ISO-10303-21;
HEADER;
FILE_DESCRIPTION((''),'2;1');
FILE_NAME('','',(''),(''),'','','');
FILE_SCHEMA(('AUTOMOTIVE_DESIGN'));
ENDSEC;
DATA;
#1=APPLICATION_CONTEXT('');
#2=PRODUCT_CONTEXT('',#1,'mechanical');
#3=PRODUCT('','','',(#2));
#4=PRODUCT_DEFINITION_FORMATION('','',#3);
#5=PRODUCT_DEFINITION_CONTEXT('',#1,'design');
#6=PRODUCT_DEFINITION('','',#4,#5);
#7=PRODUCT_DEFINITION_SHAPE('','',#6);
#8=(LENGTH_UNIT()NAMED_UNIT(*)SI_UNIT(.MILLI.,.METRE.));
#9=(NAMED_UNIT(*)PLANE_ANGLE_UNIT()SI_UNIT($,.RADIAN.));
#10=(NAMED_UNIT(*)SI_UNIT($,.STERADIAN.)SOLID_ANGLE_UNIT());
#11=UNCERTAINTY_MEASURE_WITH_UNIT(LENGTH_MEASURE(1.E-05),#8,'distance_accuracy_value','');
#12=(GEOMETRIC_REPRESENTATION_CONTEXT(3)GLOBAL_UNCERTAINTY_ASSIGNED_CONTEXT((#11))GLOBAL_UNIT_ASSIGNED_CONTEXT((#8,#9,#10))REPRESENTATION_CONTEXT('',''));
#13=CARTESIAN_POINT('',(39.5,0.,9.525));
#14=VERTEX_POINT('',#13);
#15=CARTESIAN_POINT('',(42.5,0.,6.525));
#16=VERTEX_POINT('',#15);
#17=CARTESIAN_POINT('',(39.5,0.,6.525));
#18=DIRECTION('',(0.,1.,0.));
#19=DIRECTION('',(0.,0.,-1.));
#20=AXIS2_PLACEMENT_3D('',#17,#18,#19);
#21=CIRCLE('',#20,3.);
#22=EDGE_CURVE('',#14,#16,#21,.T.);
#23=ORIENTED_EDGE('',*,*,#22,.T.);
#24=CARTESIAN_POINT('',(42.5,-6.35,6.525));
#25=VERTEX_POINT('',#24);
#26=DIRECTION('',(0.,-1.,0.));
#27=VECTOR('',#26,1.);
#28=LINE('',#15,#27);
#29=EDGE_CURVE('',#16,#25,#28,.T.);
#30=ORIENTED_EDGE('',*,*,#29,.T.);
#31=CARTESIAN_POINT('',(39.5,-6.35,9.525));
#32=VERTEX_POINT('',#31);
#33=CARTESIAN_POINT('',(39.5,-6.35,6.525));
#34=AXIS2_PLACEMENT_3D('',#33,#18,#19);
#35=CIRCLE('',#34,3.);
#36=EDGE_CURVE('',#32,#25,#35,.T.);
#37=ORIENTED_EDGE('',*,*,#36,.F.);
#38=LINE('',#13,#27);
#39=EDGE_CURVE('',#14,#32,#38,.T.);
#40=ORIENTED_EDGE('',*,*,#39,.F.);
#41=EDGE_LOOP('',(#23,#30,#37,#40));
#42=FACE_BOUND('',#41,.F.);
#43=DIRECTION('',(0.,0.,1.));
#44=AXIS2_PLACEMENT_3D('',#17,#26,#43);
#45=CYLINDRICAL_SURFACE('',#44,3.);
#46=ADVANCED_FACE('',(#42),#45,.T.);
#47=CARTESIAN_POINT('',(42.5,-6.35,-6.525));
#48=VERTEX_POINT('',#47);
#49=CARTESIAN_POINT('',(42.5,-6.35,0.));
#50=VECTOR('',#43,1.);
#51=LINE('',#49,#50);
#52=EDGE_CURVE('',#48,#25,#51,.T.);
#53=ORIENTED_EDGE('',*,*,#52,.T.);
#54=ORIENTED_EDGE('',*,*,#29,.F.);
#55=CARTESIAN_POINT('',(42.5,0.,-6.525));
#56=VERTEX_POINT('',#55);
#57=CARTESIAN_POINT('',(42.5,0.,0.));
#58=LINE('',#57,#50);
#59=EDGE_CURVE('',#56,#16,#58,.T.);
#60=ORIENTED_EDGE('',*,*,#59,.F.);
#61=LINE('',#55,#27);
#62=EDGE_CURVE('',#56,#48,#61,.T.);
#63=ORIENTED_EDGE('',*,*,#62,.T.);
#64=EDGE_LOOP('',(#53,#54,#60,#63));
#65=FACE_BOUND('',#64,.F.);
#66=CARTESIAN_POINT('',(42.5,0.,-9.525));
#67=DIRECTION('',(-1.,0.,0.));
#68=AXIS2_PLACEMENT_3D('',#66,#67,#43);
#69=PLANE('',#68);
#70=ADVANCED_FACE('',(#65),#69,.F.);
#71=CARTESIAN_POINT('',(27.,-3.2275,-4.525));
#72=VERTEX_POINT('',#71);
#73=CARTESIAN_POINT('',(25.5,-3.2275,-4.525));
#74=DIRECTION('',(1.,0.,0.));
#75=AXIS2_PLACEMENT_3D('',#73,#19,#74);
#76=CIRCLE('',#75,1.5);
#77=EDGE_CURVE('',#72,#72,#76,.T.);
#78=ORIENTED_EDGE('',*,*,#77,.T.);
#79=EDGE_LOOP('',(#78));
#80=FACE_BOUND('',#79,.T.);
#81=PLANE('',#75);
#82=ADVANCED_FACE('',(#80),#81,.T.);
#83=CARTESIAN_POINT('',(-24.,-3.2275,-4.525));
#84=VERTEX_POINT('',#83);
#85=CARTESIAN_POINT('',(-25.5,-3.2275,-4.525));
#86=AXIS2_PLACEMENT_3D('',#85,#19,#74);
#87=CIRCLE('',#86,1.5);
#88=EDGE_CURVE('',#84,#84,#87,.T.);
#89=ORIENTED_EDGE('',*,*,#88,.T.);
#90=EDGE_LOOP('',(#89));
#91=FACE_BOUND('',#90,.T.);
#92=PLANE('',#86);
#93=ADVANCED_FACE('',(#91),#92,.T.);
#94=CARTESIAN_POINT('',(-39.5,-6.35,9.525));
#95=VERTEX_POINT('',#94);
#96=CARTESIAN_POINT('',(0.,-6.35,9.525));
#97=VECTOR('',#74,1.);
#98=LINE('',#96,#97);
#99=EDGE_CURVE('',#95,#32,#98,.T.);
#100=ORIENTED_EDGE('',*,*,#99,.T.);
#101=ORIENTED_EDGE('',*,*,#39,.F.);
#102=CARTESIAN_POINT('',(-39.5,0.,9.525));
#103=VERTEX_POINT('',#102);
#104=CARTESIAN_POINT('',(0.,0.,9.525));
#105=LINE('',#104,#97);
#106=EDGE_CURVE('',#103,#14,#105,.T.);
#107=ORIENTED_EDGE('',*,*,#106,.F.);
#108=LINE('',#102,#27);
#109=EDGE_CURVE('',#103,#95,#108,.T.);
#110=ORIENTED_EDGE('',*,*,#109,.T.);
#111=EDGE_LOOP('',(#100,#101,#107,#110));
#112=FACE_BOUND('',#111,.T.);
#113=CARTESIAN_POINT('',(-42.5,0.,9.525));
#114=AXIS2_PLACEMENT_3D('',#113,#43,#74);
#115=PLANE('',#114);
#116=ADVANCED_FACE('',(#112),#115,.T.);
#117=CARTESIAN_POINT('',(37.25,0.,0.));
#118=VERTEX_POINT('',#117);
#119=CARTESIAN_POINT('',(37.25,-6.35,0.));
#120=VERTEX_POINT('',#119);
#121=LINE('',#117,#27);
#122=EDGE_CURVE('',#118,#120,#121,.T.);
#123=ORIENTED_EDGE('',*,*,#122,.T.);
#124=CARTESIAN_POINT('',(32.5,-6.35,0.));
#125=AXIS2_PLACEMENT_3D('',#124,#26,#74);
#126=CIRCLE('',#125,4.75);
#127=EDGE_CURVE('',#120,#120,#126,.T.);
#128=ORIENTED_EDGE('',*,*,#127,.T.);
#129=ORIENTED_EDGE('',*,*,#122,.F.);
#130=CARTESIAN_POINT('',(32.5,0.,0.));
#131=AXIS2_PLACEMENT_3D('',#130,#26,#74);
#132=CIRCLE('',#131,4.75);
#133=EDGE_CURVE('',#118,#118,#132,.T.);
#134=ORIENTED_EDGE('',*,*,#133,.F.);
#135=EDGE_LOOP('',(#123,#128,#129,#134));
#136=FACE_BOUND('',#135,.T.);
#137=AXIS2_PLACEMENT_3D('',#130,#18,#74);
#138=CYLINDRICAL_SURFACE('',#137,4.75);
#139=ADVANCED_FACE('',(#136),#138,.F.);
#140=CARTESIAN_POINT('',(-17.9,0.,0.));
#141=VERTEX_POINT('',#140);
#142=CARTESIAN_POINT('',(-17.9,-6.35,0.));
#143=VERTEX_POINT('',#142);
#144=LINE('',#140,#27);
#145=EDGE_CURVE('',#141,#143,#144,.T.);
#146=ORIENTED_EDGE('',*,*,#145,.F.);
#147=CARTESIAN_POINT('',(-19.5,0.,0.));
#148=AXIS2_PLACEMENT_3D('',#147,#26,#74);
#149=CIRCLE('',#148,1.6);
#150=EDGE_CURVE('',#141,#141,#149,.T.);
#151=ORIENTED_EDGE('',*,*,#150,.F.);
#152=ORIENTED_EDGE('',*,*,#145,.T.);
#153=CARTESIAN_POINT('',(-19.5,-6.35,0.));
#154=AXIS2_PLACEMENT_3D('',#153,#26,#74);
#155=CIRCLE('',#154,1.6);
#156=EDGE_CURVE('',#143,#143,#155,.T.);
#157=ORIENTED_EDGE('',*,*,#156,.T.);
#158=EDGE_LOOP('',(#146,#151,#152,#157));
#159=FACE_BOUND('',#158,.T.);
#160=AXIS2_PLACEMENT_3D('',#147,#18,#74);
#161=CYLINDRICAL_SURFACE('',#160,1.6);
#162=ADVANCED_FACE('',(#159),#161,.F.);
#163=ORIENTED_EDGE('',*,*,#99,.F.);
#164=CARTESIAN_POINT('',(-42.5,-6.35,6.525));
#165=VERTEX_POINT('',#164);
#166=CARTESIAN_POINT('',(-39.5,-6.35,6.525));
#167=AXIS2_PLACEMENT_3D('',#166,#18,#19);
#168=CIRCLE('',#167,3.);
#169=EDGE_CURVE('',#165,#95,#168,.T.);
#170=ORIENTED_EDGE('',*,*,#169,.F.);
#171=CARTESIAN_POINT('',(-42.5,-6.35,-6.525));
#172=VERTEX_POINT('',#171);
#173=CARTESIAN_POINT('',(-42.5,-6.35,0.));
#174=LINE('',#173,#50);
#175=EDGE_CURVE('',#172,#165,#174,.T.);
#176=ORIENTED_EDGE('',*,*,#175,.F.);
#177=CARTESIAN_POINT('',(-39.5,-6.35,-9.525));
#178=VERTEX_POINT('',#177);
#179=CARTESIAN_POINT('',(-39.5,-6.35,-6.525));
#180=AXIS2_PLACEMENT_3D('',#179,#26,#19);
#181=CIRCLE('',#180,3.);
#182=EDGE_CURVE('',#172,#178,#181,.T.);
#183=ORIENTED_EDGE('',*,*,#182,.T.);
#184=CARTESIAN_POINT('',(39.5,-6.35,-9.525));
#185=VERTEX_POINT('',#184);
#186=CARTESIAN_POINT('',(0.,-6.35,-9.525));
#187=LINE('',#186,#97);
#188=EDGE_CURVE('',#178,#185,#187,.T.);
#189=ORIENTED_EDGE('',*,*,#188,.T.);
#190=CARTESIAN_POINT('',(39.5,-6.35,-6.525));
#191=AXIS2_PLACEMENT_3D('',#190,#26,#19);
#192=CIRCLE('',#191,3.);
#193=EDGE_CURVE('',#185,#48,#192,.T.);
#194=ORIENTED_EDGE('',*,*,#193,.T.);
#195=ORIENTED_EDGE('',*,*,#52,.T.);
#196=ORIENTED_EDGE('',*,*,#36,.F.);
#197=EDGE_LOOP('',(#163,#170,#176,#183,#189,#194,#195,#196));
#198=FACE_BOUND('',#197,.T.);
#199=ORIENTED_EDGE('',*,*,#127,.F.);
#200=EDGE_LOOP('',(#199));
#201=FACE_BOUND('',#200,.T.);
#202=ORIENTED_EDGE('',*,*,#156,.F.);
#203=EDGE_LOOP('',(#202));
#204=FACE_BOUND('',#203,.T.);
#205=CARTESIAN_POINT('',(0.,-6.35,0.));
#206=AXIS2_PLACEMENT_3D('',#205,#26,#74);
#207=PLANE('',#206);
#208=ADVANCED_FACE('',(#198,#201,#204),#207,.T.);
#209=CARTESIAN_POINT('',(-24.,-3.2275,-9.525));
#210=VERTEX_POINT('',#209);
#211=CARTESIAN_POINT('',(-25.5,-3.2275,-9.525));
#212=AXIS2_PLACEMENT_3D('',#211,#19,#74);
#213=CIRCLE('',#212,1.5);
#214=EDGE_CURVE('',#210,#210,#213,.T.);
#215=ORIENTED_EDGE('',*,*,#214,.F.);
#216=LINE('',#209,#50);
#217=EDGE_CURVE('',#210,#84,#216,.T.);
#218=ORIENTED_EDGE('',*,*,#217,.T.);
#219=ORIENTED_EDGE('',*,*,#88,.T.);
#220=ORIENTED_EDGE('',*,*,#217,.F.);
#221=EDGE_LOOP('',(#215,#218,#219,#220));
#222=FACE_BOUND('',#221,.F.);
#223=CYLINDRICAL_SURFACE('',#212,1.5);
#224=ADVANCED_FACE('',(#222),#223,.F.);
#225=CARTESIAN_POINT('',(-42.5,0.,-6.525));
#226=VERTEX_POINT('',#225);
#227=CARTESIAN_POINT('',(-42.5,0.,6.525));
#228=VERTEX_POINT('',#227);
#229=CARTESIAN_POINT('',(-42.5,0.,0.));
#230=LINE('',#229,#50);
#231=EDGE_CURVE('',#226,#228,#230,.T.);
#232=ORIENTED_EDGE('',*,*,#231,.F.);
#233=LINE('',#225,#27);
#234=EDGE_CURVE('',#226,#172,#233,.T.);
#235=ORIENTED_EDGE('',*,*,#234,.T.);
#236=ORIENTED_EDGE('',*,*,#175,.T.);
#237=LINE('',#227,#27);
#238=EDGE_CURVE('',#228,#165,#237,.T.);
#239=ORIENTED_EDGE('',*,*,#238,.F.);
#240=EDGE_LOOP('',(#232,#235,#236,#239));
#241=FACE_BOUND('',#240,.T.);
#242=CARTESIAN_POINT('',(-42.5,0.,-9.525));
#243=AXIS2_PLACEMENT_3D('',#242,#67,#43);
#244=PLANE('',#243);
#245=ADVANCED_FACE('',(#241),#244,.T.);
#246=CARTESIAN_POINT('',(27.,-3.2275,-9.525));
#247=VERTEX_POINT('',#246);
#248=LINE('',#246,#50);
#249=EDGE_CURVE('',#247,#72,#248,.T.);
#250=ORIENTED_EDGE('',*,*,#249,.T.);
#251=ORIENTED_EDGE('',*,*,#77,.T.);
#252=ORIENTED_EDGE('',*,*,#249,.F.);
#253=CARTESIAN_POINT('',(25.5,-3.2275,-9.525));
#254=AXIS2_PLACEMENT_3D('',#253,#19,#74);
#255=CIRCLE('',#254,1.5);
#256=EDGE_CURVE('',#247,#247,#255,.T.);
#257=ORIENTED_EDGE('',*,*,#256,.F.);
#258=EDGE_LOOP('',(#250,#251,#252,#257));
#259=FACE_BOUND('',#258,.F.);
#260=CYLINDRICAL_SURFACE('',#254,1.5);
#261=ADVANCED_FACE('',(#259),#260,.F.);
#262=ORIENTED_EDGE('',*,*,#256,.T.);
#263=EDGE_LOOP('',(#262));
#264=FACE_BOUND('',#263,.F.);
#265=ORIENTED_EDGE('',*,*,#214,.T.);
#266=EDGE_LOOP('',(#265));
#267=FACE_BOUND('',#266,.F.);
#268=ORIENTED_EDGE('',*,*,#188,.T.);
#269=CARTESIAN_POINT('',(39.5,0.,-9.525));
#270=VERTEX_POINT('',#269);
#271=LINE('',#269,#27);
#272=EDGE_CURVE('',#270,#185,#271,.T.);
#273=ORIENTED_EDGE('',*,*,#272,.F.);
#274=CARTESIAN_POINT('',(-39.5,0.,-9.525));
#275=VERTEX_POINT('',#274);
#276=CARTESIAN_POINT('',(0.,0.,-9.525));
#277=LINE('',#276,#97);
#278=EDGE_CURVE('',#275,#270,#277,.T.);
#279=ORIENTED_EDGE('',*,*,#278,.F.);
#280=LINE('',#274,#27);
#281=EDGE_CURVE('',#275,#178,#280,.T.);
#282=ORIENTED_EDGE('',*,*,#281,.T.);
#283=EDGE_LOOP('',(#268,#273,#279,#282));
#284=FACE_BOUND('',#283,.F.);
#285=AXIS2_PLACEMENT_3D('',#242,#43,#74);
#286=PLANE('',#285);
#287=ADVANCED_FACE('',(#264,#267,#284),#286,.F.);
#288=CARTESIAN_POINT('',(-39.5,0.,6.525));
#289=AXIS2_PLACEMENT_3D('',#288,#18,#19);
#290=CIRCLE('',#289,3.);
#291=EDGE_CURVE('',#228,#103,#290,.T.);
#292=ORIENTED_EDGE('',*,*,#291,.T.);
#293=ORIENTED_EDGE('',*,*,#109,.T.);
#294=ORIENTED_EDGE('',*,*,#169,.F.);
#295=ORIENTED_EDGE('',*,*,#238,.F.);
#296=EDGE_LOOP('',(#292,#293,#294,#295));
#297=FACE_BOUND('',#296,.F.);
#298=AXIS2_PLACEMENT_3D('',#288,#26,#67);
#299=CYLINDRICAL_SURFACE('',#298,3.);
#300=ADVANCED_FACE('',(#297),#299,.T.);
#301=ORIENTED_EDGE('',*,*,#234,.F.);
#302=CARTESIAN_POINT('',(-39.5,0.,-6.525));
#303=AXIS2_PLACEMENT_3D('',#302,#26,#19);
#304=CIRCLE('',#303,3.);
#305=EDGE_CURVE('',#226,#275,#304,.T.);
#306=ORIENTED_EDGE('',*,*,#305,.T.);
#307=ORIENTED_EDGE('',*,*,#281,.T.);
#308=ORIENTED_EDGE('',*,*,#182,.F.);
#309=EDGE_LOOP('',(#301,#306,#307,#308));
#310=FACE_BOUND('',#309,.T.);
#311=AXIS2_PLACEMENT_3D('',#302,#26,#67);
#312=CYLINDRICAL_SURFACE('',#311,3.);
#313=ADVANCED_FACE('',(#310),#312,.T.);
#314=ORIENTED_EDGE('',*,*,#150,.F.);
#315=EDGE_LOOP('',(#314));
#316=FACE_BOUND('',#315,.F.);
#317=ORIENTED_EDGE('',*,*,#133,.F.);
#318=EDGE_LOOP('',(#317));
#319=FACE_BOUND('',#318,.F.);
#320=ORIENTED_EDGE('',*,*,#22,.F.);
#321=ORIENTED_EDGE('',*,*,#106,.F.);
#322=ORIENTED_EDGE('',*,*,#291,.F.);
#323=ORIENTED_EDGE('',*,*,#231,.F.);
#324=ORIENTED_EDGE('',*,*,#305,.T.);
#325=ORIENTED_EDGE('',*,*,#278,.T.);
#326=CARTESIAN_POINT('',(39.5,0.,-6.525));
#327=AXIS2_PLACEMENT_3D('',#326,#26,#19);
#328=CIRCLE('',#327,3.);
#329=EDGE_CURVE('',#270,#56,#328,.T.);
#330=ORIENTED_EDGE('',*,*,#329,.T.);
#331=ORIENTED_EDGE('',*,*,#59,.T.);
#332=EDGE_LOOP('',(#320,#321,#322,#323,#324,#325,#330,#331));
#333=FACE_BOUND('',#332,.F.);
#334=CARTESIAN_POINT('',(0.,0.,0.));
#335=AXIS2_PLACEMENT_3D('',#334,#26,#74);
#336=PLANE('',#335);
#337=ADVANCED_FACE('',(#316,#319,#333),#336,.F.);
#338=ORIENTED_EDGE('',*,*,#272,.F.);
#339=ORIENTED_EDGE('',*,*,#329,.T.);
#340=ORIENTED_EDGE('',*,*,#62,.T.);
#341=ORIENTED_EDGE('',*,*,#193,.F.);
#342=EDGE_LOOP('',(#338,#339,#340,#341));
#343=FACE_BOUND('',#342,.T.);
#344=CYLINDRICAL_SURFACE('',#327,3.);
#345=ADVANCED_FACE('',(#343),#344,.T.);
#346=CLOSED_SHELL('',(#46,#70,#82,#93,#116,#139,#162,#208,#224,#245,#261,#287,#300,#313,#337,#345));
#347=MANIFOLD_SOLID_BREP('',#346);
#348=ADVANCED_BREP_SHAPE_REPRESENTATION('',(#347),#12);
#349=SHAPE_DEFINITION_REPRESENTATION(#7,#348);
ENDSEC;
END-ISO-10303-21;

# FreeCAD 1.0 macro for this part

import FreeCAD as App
import Part
import Sketcher
Q = App.Units.Quantity


def edges_at(feature, points):
    """Names of the edges that pass closest to the given points."""
    edges = feature.Shape.Edges
    near = lambda p: min(range(len(edges)), key=lambda i: edges[i].distToShape(Part.Vertex(*p))[0])
    return sorted({f"Edge{near(p) + 1}" for p in points})


def add_polygon(sketch, points):
    """Adds a closed chain of lines whose ends are joined by coincident constraints."""
    first, n = sketch.GeometryCount, len(points)
    for a, b in zip(points, points[1:] + points[:1]):
        sketch.addGeometry(Part.LineSegment(App.Vector(*a, 0), App.Vector(*b, 0)), False)
    for i in range(n):
        sketch.addConstraint(Sketcher.Constraint("Coincident", first + i, 2, first + (i + 1) % n, 1))

doc = App.newDocument("Part")
body = doc.addObject("PartDesign::Body", "Body")

# Sketch on XZ plane
sketch1 = doc.addObject("Sketcher::SketchObject", "Sketch")
body.addObject(sketch1)
sketch1.AttachmentSupport = (doc.XZ_Plane, [""])
sketch1.MapMode = "FlatFace"
add_polygon(sketch1, [(-42.5, 9.5), (-42.5, -9.5), (42.5, -9.5), (42.5, 9.5)])  # lines 0-3
sketch1.addGeometry(Part.Circle(App.Vector(-19.5, 0, 0), App.Vector(0, 0, 1), 1.6), False)  # 4
sketch1.addGeometry(Part.Circle(App.Vector(32.5, 0, 0), App.Vector(0, 0, 1), 4.8), False)  # 5
sketch1.addConstraint([
    Sketcher.Constraint("Vertical", 0),
    Sketcher.Constraint("Horizontal", 1),
    Sketcher.Constraint("Vertical", 2),
    Sketcher.Constraint("Horizontal", 3),
    Sketcher.Constraint("Symmetric", 0, 2, 2, 2, -1, 1),
    Sketcher.Constraint("PointOnObject", 4, 3, -1),
    Sketcher.Constraint("PointOnObject", 5, 3, -1),
    Sketcher.Constraint("Diameter", 4, Q("3.2 mm")),
    Sketcher.Constraint("Diameter", 5, Q("9.5 mm")),
    Sketcher.Constraint("DistanceX", 1, 1, 1, 2, Q("85 mm")),
    Sketcher.Constraint("DistanceX", 4, 3, 5, 3, Q("52 mm")),
    Sketcher.Constraint("DistanceX", 0, 2, 4, 3, Q("23 mm")),
    Sketcher.Constraint("DistanceY", 0, 2, 0, 1, Q("19.05 mm")),
])
pad1 = doc.addObject("PartDesign::Pad", "Pad")
body.addObject(pad1)
pad1.Profile = sketch1
pad1.Length = 6.35
doc.recompute()

fillet = doc.addObject("PartDesign::Fillet", "Fillet")
body.addObject(fillet)
fillet.Base = (pad1, edges_at(pad1, [
    (-42.5, -3.175, 9.525),
    (-42.5, -3.175, -9.525),
    (42.5, -3.175, -9.525),
    (42.5, -3.175, 9.525),
]))
fillet.Radius = 3

# Sketch on XY plane
sketch2 = doc.addObject("Sketcher::SketchObject", "Sketch001")
body.addObject(sketch2)
sketch2.AttachmentSupport = (doc.XY_Plane, [""])
sketch2.MapMode = "FlatFace"
sketch2.AttachmentOffset = App.Placement(App.Vector(0, 0, -9.525), App.Rotation())
sketch2.addGeometry([
    Part.Circle(App.Vector(-25.5, -3.2, 0), App.Vector(0, 0, 1), 1.5),
    Part.Circle(App.Vector(25.5, -3.2, 0), App.Vector(0, 0, 1), 1.5),
], False)
sketch2.addConstraint([
    Sketcher.Constraint("Equal", 0, 1),
    Sketcher.Constraint("Symmetric", 0, 3, 1, 3, -2),
    Sketcher.Constraint("Diameter", 0, Q("3 mm")),
    Sketcher.Constraint("DistanceX", 0, 3, 1, 3, Q("51 mm")),
    Sketcher.Constraint("DistanceY", 0, 3, -1, 1, Q("3.2275 mm")),
])
pocket1 = doc.addObject("PartDesign::Pocket", "Pocket")
body.addObject(pocket1)
pocket1.Profile = sketch2
pocket1.Length = 5
pocket1.Reversed = True

doc.recompute()
